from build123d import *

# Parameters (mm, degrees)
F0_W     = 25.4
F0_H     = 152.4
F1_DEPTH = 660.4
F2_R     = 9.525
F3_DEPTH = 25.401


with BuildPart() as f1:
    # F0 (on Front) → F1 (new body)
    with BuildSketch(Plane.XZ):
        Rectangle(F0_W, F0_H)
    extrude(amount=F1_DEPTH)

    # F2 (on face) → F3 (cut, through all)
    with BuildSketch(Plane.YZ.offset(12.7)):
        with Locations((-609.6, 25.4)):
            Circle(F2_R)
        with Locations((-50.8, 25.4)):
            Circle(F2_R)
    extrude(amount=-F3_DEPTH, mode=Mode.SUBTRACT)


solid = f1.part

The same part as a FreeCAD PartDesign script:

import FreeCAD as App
import Part
import Sketcher
from FreeCAD import Vector
Q = App.Units.Quantity

doc = App.newDocument("Part")
params = doc.addObject("Spreadsheet::Sheet", "Params")
for row, (alias, value) in enumerate([
    ("sketch1_width", "1 in"),
    ("sketch1_height", "6 in"),
    ("pad1_length", "26 in"),
    ("sketch2_diameter", "0.75 in"),
], start=1):
    params.set(f"A{row}", alias)
    params.set(f"B{row}", "=" + value)
    params.setAlias(f"B{row}", alias)

body = doc.addObject("PartDesign::Body", "Body")

sketch1 = body.newObject("Sketcher::SketchObject", "Sketch")
sketch1.AttachmentSupport = (doc.getObject("XZ_Plane"), [""])
sketch1.MapMode = "FlatFace"
sketch1.addGeometry([
    Part.LineSegment(Vector(-13, 76, 0), Vector(-13, -76, 0)),
    Part.LineSegment(Vector(-13, -76, 0), Vector(13, -76, 0)),
    Part.LineSegment(Vector(13, -76, 0), Vector(13, 76, 0)),
    Part.LineSegment(Vector(13, 76, 0), Vector(-13, 76, 0)),
], False)
sketch1.addConstraint([
    Sketcher.Constraint("Coincident", 0, 2, 1, 1),
    Sketcher.Constraint("Coincident", 1, 2, 2, 1),
    Sketcher.Constraint("Coincident", 2, 2, 3, 1),
    Sketcher.Constraint("Coincident", 3, 2, 0, 1),
    Sketcher.Constraint("Vertical", 0),
    Sketcher.Constraint("Horizontal", 1),
    Sketcher.Constraint("Vertical", 2),
    Sketcher.Constraint("Horizontal", 3),
    Sketcher.Constraint("Symmetric", 0, 2, 2, 2, -1, 1),
    Sketcher.Constraint("DistanceX", 1, 1, 1, 2, Q("1 in")),
    Sketcher.Constraint("DistanceY", 0, 2, 0, 1, Q("6 in")),
])
sketch1.setExpression("Constraints[9]", "Params.sketch1_width")
sketch1.setExpression("Constraints[10]", "Params.sketch1_height")
pad1 = body.newObject("PartDesign::Pad", "Pad")
pad1.Profile = sketch1
pad1.setExpression("Length", "Params.pad1_length")

sketch2 = body.newObject("Sketcher::SketchObject", "Sketch001")
sketch2.AttachmentSupport = (doc.getObject("YZ_Plane"), [""])
sketch2.MapMode = "FlatFace"
sketch2.AttachmentOffset = App.Placement(Vector(0, 0, 0.5 * 25.4), App.Rotation())
sketch2.addGeometry([
    Part.Circle(Vector(-610, 25, 0), Vector(0, 0, 1), 10),
    Part.Circle(Vector(-51, 25, 0), Vector(0, 0, 1), 10),
], False)
sketch2.addConstraint([
    Sketcher.Constraint("Equal", 0, 1),
    Sketcher.Constraint("Horizontal", 0, 3, 1, 3),
    Sketcher.Constraint("Diameter", 0, Q("0.75 in")),
    Sketcher.Constraint("DistanceX", 0, 3, -1, 1, Q("24 in")),
    Sketcher.Constraint("DistanceY", -1, 1, 0, 3, Q("1 in")),
    Sketcher.Constraint("DistanceX", 1, 3, -1, 1, Q("2 in")),
])
sketch2.setExpression("Constraints[2]", "Params.sketch2_diameter")
pocket1 = body.newObject("PartDesign::Pocket", "Pocket")
pocket1.Profile = sketch2
pocket1.Type = "ThroughAll"

doc.recompute()
